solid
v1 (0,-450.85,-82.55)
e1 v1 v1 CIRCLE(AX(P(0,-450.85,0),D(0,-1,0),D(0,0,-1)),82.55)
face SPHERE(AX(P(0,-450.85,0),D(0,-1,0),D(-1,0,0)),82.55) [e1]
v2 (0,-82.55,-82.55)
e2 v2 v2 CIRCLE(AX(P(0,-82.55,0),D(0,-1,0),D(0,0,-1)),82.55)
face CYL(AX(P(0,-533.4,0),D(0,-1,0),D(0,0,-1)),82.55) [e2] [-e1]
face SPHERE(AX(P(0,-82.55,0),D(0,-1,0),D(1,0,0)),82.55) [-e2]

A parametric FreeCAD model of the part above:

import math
import FreeCAD as App
import Part
import Sketcher
Q = App.Units.Quantity

doc = App.newDocument("Part")
body = doc.addObject("PartDesign::Body", "Body")

sketch1 = body.newObject("Sketcher::SketchObject", "Sketch")
sketch1.AttachmentSupport = (doc.getObject("XY_Plane"), [""])
sketch1.MapMode = "FlatFace"
sketch1.addGeometry([
    Part.LineSegment(App.Vector(-83, -83, 0), App.Vector(-83, -451, 0)),
    Part.ArcOfCircle(Part.Circle(App.Vector(0, -451, 0), App.Vector(0, 0, 1), 83), math.radians(180), math.radians(270)),
    Part.LineSegment(App.Vector(0, -533, 0), App.Vector(0, 0, 0)),
    Part.ArcOfCircle(Part.Circle(App.Vector(0, -83, 0), App.Vector(0, 0, 1), 83), math.radians(90), math.radians(180)),
], False)
sketch1.addConstraint([
    Sketcher.Constraint("Tangent", 0, 2, 1, 1),
    Sketcher.Constraint("Coincident", 1, 2, 2, 1),
    Sketcher.Constraint("Coincident", 2, 2, 3, 1),
    Sketcher.Constraint("Tangent", 3, 2, 0, 1),
    Sketcher.Constraint("Vertical", 0),
    Sketcher.Constraint("Vertical", 2),
    Sketcher.Constraint("Coincident", 2, 2, -1, 1),
    Sketcher.Constraint("Equal", 1, 3),
    Sketcher.Constraint("PointOnObject", 1, 3, -2),
    Sketcher.Constraint("DistanceY", 2, 1, 2, 2, Q("21 in")),
    Sketcher.Constraint("Radius", 1, Q("3.25 in")),
])
revolution = body.newObject("PartDesign::Revolution", "Revolution")
revolution.Profile = sketch1
revolution.ReferenceAxis = (sketch1, ["V_Axis"])
revolution.Angle = 360

doc.recompute()
